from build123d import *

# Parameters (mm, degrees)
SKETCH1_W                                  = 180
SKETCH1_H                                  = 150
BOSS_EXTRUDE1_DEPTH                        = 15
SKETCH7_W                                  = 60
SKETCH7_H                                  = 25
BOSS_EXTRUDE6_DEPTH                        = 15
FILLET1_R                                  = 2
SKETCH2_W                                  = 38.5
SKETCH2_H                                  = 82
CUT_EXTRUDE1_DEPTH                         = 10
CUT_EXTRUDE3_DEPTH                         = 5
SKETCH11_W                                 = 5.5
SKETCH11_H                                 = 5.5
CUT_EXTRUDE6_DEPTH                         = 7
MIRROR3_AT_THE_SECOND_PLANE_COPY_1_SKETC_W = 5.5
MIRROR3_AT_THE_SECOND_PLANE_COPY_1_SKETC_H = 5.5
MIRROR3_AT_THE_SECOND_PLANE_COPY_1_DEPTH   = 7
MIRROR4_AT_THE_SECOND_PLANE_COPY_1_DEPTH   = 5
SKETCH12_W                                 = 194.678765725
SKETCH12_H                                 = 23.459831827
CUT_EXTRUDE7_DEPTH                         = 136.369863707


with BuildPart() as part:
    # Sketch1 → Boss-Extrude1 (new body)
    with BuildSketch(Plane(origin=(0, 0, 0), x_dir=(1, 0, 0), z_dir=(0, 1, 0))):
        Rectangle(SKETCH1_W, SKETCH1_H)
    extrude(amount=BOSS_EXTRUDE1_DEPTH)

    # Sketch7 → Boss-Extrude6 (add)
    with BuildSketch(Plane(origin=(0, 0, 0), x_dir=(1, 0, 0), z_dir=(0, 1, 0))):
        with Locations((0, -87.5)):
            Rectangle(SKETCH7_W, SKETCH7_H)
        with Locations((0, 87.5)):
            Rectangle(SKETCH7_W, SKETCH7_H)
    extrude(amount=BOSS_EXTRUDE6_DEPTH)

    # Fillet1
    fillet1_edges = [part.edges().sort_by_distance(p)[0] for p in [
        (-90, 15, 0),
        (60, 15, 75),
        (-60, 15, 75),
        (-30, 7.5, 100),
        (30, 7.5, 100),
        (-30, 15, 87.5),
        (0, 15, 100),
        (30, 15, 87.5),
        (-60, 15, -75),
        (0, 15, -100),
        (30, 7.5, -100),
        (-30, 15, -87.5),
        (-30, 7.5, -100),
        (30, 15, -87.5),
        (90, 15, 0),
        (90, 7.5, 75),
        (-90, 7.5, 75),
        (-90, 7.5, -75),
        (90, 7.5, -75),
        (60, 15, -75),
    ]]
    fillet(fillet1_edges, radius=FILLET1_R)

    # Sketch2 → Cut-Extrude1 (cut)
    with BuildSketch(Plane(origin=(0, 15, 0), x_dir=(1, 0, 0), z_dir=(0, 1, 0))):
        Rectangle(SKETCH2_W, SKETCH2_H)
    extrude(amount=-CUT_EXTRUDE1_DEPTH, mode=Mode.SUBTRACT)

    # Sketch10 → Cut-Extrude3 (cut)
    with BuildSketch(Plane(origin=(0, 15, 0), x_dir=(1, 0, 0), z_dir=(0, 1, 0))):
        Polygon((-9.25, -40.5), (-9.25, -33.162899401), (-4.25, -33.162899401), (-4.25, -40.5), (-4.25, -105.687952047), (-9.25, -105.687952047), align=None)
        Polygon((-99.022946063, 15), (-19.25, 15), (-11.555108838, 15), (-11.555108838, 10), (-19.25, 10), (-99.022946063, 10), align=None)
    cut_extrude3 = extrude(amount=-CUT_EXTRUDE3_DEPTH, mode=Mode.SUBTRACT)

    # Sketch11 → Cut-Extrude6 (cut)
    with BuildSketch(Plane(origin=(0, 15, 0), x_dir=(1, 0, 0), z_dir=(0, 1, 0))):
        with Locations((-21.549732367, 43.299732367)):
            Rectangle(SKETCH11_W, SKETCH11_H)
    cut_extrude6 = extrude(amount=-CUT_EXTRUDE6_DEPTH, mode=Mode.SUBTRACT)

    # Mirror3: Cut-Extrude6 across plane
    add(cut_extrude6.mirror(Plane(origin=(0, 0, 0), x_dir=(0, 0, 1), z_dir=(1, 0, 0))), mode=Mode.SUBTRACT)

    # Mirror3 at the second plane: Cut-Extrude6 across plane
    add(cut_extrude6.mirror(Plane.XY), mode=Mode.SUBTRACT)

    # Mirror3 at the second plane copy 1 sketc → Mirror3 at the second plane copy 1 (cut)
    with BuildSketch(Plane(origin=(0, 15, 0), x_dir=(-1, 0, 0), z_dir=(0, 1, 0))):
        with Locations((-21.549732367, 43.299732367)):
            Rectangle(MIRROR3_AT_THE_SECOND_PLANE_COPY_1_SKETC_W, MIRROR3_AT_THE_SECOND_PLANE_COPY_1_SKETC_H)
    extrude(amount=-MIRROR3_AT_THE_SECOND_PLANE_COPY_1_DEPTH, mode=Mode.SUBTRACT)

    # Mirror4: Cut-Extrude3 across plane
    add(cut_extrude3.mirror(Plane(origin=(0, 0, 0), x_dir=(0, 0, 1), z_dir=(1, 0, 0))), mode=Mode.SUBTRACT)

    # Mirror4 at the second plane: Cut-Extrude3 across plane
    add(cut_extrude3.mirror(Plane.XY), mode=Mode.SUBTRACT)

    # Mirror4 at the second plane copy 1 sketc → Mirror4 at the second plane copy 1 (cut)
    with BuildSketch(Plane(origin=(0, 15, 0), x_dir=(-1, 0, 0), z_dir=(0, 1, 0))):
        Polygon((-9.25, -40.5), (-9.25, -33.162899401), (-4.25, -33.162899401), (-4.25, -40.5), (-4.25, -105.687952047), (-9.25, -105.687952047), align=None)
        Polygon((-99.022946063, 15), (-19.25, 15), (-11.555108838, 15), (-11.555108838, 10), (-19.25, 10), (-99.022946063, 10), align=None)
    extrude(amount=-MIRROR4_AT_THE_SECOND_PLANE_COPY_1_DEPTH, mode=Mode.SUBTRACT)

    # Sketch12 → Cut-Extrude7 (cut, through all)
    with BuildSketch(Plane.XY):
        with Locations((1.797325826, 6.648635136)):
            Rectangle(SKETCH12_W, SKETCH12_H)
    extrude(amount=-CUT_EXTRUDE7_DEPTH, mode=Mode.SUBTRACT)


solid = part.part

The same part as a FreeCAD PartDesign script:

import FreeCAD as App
import Part
import Sketcher
Q = App.Units.Quantity


def edges_at(feature, points):
    """Names of the edges that pass closest to the given points."""
    edges = feature.Shape.Edges
    near = lambda p: min(range(len(edges)), key=lambda i: edges[i].distToShape(Part.Vertex(*p))[0])
    return sorted({f"Edge{near(p) + 1}" for p in points})


def add_polygon(sketch, points):
    """Adds a closed chain of lines whose ends are joined by coincident constraints."""
    first, n = sketch.GeometryCount, len(points)
    for a, b in zip(points, points[1:] + points[:1]):
        sketch.addGeometry(Part.LineSegment(App.Vector(*a, 0), App.Vector(*b, 0)), False)
    for i in range(n):
        sketch.addConstraint(Sketcher.Constraint("Coincident", first + i, 2, first + (i + 1) % n, 1))

doc = App.newDocument("Part")
body = doc.addObject("PartDesign::Body", "Body")

# Sketch on XZ plane
sketch1 = doc.addObject("Sketcher::SketchObject", "Sketch")
body.addObject(sketch1)
sketch1.AttachmentSupport = (doc.XZ_Plane, [""])
sketch1.MapMode = "FlatFace"
add_polygon(sketch1, [(-90, -75), (-90, 75), (90, 75), (90, -75)])  # lines 0-3
sketch1.addConstraint([
    Sketcher.Constraint("Vertical", 0),
    Sketcher.Constraint("Horizontal", 1),
    Sketcher.Constraint("Vertical", 2),
    Sketcher.Constraint("Horizontal", 3),
    Sketcher.Constraint("Symmetric", 0, 2, 2, 2, -1, 1),
    Sketcher.Constraint("DistanceX", 1, 1, 1, 2, Q("180 mm")),
    Sketcher.Constraint("DistanceY", 0, 1, 0, 2, Q("150 mm")),
])
pad1 = doc.addObject("PartDesign::Pad", "Pad")
body.addObject(pad1)
pad1.Profile = sketch1
pad1.Length = 15
pad1.Reversed = True

# Sketch on XZ plane
sketch2 = doc.addObject("Sketcher::SketchObject", "Sketch001")
body.addObject(sketch2)
sketch2.AttachmentSupport = (doc.XZ_Plane, [""])
sketch2.MapMode = "FlatFace"
add_polygon(sketch2, [(-30, 75), (-30, 100), (30, 100), (30, 75)])  # lines 0-3
add_polygon(sketch2, [(-30, -100), (-30, -75), (30, -75), (30, -100)])  # lines 4-7
sketch2.addConstraint([
    Sketcher.Constraint("Vertical", 0),
    Sketcher.Constraint("Horizontal", 1),
    Sketcher.Constraint("Vertical", 2),
    Sketcher.Constraint("Horizontal", 3),
    Sketcher.Constraint("Vertical", 4),
    Sketcher.Constraint("Horizontal", 5),
    Sketcher.Constraint("Vertical", 6),
    Sketcher.Constraint("Horizontal", 7),
    Sketcher.Constraint("Symmetric", 2, 2, 4, 2, -1, 1),
    Sketcher.Constraint("Symmetric", 0, 2, 6, 2, -1, 1),
    Sketcher.Constraint("Vertical", 3, 2, 4, 2),
    Sketcher.Constraint("DistanceX", 1, 1, 1, 2, Q("60 mm")),
    Sketcher.Constraint("DistanceY", 0, 1, 0, 2, Q("25 mm")),
    Sketcher.Constraint("DistanceY", -1, 1, 0, 2, Q("100 mm")),
])
pad2 = doc.addObject("PartDesign::Pad", "Pad001")
body.addObject(pad2)
pad2.Profile = sketch2
pad2.Length = 15
pad2.Reversed = True
doc.recompute()

fillet = doc.addObject("PartDesign::Fillet", "Fillet")
body.addObject(fillet)
fillet.Base = (pad2, edges_at(pad2, [
    (-90, 15, 0),
    (60, 15, 75),
    (-60, 15, 75),
    (-30, 7.5, 100),
    (30, 7.5, 100),
    (-30, 15, 87.5),
    (0, 15, 100),
    (30, 15, 87.5),
    (-60, 15, -75),
    (0, 15, -100),
    (30, 7.5, -100),
    (-30, 15, -87.5),
    (-30, 7.5, -100),
    (30, 15, -87.5),
    (90, 15, 0),
    (90, 7.5, 75),
    (-90, 7.5, 75),
    (-90, 7.5, -75),
    (90, 7.5, -75),
    (60, 15, -75),
]))
fillet.Radius = 2

# Sketch on XZ plane
sketch3 = doc.addObject("Sketcher::SketchObject", "Sketch002")
body.addObject(sketch3)
sketch3.AttachmentSupport = (doc.XZ_Plane, [""])
sketch3.MapMode = "FlatFace"
sketch3.AttachmentOffset = App.Placement(App.Vector(0, 0, -15), App.Rotation())
add_polygon(sketch3, [(-19.25, -41), (-19.25, 41), (19.25, 41), (19.25, -41)])  # lines 0-3
sketch3.addConstraint([
    Sketcher.Constraint("Vertical", 0),
    Sketcher.Constraint("Horizontal", 1),
    Sketcher.Constraint("Vertical", 2),
    Sketcher.Constraint("Horizontal", 3),
    Sketcher.Constraint("Symmetric", 0, 2, 2, 2, -1, 1),
    Sketcher.Constraint("DistanceY", 0, 1, 0, 2, Q("82 mm")),
    Sketcher.Constraint("DistanceX", 1, 1, 1, 2, Q("38.5 mm")),
])
pocket1 = doc.addObject("PartDesign::Pocket", "Pocket")
body.addObject(pocket1)
pocket1.Profile = sketch3
pocket1.Length = 10
pocket1.Reversed = True

# Sketch on XZ plane
sketch4 = doc.addObject("Sketcher::SketchObject", "Sketch003")
body.addObject(sketch4)
sketch4.AttachmentSupport = (doc.XZ_Plane, [""])
sketch4.MapMode = "FlatFace"
sketch4.AttachmentOffset = App.Placement(App.Vector(0, 0, -15), App.Rotation())
add_polygon(sketch4, [(-9.25, 33.162899), (-9.25, 105.687952), (-4.25, 105.687952), (-4.25, 33.162899)])  # lines 0-3
add_polygon(sketch4, [(-11.555109, -15), (-99.022946, -15), (-99.022946, -10), (-11.555109, -10)])  # lines 4-7
sketch4.addConstraint([
    Sketcher.Constraint("Vertical", 0),
    Sketcher.Constraint("Horizontal", 1),
    Sketcher.Constraint("Vertical", 2),
    Sketcher.Constraint("Horizontal", 3),
    Sketcher.Constraint("Horizontal", 4),
    Sketcher.Constraint("Vertical", 5),
    Sketcher.Constraint("Horizontal", 6),
    Sketcher.Constraint("Vertical", 7),
    Sketcher.Constraint("Equal", 3, 5),
    Sketcher.Constraint("DistanceX", 1, 1, 1, 2, Q("5 mm")),
    Sketcher.Constraint("DistanceY", 4, 2, -1, 1, Q("15 mm")),
    Sketcher.Constraint("DistanceX", 0, 2, -1, 1, Q("9.25 mm")),
    Sketcher.Constraint("DistanceY", -1, 1, 2, 2, Q("33.162899 mm")),
    Sketcher.Constraint("DistanceX", 4, 2, 4, 1, Q("87.467837 mm")),
    Sketcher.Constraint("DistanceY", 0, 1, 0, 2, Q("72.525053 mm")),
    Sketcher.Constraint("DistanceX", 6, 2, -1, 1, Q("11.555109 mm")),
])
pocket2 = doc.addObject("PartDesign::Pocket", "Pocket001")
body.addObject(pocket2)
pocket2.Profile = sketch4
pocket2.Length = 5
pocket2.Reversed = True

# Sketch on XZ plane
sketch5 = doc.addObject("Sketcher::SketchObject", "Sketch004")
body.addObject(sketch5)
sketch5.AttachmentSupport = (doc.XZ_Plane, [""])
sketch5.MapMode = "FlatFace"
sketch5.AttachmentOffset = App.Placement(App.Vector(0, 0, -15), App.Rotation())
add_polygon(sketch5, [(-24.299732, -46.049732), (-24.299732, -40.549732), (-18.799732, -40.549732), (-18.799732, -46.049732)])  # lines 0-3
sketch5.addConstraint([
    Sketcher.Constraint("Vertical", 0),
    Sketcher.Constraint("Horizontal", 1),
    Sketcher.Constraint("Vertical", 2),
    Sketcher.Constraint("Horizontal", 3),
    Sketcher.Constraint("Equal", 3, 0),
    Sketcher.Constraint("DistanceX", 1, 1, 1, 2, Q("5.5 mm")),
    Sketcher.Constraint("DistanceX", 0, 2, -1, 1, Q("24.299732 mm")),
    Sketcher.Constraint("DistanceY", 0, 2, -1, 1, Q("40.549732 mm")),
])
pocket3 = doc.addObject("PartDesign::Pocket", "Pocket002")
body.addObject(pocket3)
pocket3.Profile = sketch5
pocket3.Length = 7
pocket3.Reversed = True
doc.recompute()

mirrored = doc.addObject("PartDesign::Mirrored", "Mirrored")
body.addObject(mirrored)
mirrored.Originals = [pocket3]
mirrored.MirrorPlane = (doc.YZ_Plane, [""])
body.Tip = mirrored
doc.recompute()

mirrored2 = doc.addObject("PartDesign::Mirrored", "Mirrored001")
body.addObject(mirrored2)
mirrored2.Originals = [pocket3]
mirrored2.MirrorPlane = (doc.XY_Plane, [""])
body.Tip = mirrored2

# Sketch on XZ plane
sketch6 = doc.addObject("Sketcher::SketchObject", "Sketch005")
body.addObject(sketch6)
sketch6.AttachmentSupport = (doc.XZ_Plane, [""])
sketch6.MapMode = "FlatFace"
sketch6.AttachmentOffset = App.Placement(App.Vector(0, 0, -15), App.Rotation())
add_polygon(sketch6, [(24.299732, 46.049732), (24.299732, 40.549732), (18.799732, 40.549732), (18.799732, 46.049732)])  # lines 0-3
sketch6.addConstraint([
    Sketcher.Constraint("Vertical", 0),
    Sketcher.Constraint("Horizontal", 1),
    Sketcher.Constraint("Vertical", 2),
    Sketcher.Constraint("Horizontal", 3),
    Sketcher.Constraint("Equal", 3, 0),
    Sketcher.Constraint("DistanceX", 1, 2, 1, 1, Q("5.5 mm")),
    Sketcher.Constraint("DistanceX", -1, 1, 0, 2, Q("24.299732 mm")),
    Sketcher.Constraint("DistanceY", -1, 1, 0, 2, Q("40.549732 mm")),
])
pocket4 = doc.addObject("PartDesign::Pocket", "Pocket003")
body.addObject(pocket4)
pocket4.Profile = sketch6
pocket4.Length = 7
pocket4.Reversed = True
doc.recompute()

mirrored3 = doc.addObject("PartDesign::Mirrored", "Mirrored002")
body.addObject(mirrored3)
mirrored3.Originals = [pocket2]
mirrored3.MirrorPlane = (doc.YZ_Plane, [""])
body.Tip = mirrored3
doc.recompute()

mirrored4 = doc.addObject("PartDesign::Mirrored", "Mirrored003")
body.addObject(mirrored4)
mirrored4.Originals = [pocket2]
mirrored4.MirrorPlane = (doc.XY_Plane, [""])
body.Tip = mirrored4

# Sketch on XZ plane
sketch7 = doc.addObject("Sketcher::SketchObject", "Sketch006")
body.addObject(sketch7)
sketch7.AttachmentSupport = (doc.XZ_Plane, [""])
sketch7.MapMode = "FlatFace"
sketch7.AttachmentOffset = App.Placement(App.Vector(0, 0, -15), App.Rotation())
add_polygon(sketch7, [(9.25, -33.162899), (9.25, -105.687952), (4.25, -105.687952), (4.25, -33.162899)])  # lines 0-3
add_polygon(sketch7, [(11.555109, 15), (99.022946, 15), (99.022946, 10), (11.555109, 10)])  # lines 4-7
sketch7.addConstraint([
    Sketcher.Constraint("Vertical", 0),
    Sketcher.Constraint("Horizontal", 1),
    Sketcher.Constraint("Vertical", 2),
    Sketcher.Constraint("Horizontal", 3),
    Sketcher.Constraint("Horizontal", 4),
    Sketcher.Constraint("Vertical", 5),
    Sketcher.Constraint("Horizontal", 6),
    Sketcher.Constraint("Vertical", 7),
    Sketcher.Constraint("Equal", 3, 5),
    Sketcher.Constraint("DistanceX", 1, 2, 1, 1, Q("5 mm")),
    Sketcher.Constraint("DistanceY", -1, 1, 4, 2, Q("15 mm")),
    Sketcher.Constraint("DistanceX", -1, 1, 0, 2, Q("9.25 mm")),
    Sketcher.Constraint("DistanceY", 2, 2, -1, 1, Q("33.162899 mm")),
    Sketcher.Constraint("DistanceX", 4, 1, 4, 2, Q("87.467837 mm")),
    Sketcher.Constraint("DistanceY", 0, 2, 0, 1, Q("72.525053 mm")),
    Sketcher.Constraint("DistanceX", -1, 1, 6, 2, Q("11.555109 mm")),
])
pocket5 = doc.addObject("PartDesign::Pocket", "Pocket004")
body.addObject(pocket5)
pocket5.Profile = sketch7
pocket5.Length = 5
pocket5.Reversed = True

# Sketch on XY plane
sketch8 = doc.addObject("Sketcher::SketchObject", "Sketch007")
body.addObject(sketch8)
sketch8.AttachmentSupport = (doc.XY_Plane, [""])
sketch8.MapMode = "FlatFace"
add_polygon(sketch8, [(-95.542057, 18.378551), (-95.542057, -5.081281), (99.136709, -5.081281), (99.136709, 18.378551)])  # lines 0-3
sketch8.addConstraint([
    Sketcher.Constraint("Vertical", 0),
    Sketcher.Constraint("Horizontal", 1),
    Sketcher.Constraint("Vertical", 2),
    Sketcher.Constraint("Horizontal", 3),
    Sketcher.Constraint("DistanceY", 0, 2, 0, 1, Q("23.459832 mm")),
    Sketcher.Constraint("DistanceX", 1, 1, 1, 2, Q("194.678766 mm")),
    Sketcher.Constraint("DistanceY", 0, 2, -1, 1, Q("5.081281 mm")),
    Sketcher.Constraint("DistanceX", -1, 1, 1, 2, Q("99.136709 mm")),
])
pocket6 = doc.addObject("PartDesign::Pocket", "Pocket005")
body.addObject(pocket6)
pocket6.Profile = sketch8
pocket6.Type = "ThroughAll"

doc.recompute()
